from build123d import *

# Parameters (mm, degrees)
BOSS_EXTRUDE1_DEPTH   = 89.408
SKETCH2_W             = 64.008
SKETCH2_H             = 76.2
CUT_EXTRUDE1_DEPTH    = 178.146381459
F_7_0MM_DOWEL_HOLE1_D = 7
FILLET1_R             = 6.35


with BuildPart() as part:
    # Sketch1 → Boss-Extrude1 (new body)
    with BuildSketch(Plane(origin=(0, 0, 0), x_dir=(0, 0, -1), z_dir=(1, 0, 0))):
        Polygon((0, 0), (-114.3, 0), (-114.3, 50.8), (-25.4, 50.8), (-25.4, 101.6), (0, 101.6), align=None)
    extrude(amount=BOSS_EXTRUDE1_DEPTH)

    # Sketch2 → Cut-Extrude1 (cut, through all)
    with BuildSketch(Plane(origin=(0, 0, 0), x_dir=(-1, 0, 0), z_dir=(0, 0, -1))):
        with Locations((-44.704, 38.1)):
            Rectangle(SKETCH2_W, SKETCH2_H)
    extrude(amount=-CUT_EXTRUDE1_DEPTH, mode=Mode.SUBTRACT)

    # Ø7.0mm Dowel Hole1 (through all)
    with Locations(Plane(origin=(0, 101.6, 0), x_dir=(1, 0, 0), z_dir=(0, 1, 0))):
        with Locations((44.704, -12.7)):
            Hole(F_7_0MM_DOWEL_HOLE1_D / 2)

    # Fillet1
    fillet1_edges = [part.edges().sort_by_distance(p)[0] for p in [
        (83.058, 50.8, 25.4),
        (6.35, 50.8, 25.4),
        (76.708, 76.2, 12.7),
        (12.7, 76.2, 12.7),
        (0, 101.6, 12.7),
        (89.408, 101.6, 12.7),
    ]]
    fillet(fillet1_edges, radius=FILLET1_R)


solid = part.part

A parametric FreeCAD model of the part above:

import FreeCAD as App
import Part
import Sketcher

V = App.Vector
Q = App.Units.Quantity


def edges_at(feature, points):
    """Names of the edges that pass closest to the given points."""
    edges = feature.Shape.Edges
    near = lambda p: min(range(len(edges)), key=lambda i: edges[i].distToShape(Part.Vertex(*p))[0])
    return sorted({f"Edge{near(p) + 1}" for p in points})

doc = App.newDocument("Part")
body = doc.addObject("PartDesign::Body", "Body")

sketch1 = doc.addObject("Sketcher::SketchObject", "Sketch")
body.addObject(sketch1)
sketch1.AttachmentSupport = (doc.YZ_Plane, [""])
sketch1.MapMode = "FlatFace"
sketch1.addGeometry([
    Part.LineSegment(V(0, 114.3, 0), V(0, 0, 0)),
    Part.LineSegment(V(0, 0, 0), V(101.6, 0, 0)),
    Part.LineSegment(V(101.6, 0, 0), V(101.6, 25.4, 0)),
    Part.LineSegment(V(101.6, 25.4, 0), V(50.8, 25.4, 0)),
    Part.LineSegment(V(50.8, 25.4, 0), V(50.8, 114.3, 0)),
    Part.LineSegment(V(50.8, 114.3, 0), V(0, 114.3, 0)),
], False)
sketch1.addConstraint([
    Sketcher.Constraint("Coincident", 0, 2, 1, 1),
    Sketcher.Constraint("Coincident", 1, 2, 2, 1),
    Sketcher.Constraint("Coincident", 2, 2, 3, 1),
    Sketcher.Constraint("Coincident", 3, 2, 4, 1),
    Sketcher.Constraint("Coincident", 4, 2, 5, 1),
    Sketcher.Constraint("Coincident", 5, 2, 0, 1),
    Sketcher.Constraint("Vertical", 0),
    Sketcher.Constraint("Horizontal", 1),
    Sketcher.Constraint("Vertical", 2),
    Sketcher.Constraint("Horizontal", 3),
    Sketcher.Constraint("Vertical", 4),
    Sketcher.Constraint("Horizontal", 5),
    Sketcher.Constraint("Coincident", 0, 2, -1, 1),
    Sketcher.Constraint("Equal", 3, 5),
    Sketcher.Constraint("DistanceX", 1, 1, 1, 2, Q("4 in")),
    Sketcher.Constraint("DistanceY", 2, 1, 2, 2, Q("1 in")),
    Sketcher.Constraint("DistanceY", 0, 2, 0, 1, Q("4.5 in")),
])
pad1 = doc.addObject("PartDesign::Pad", "Pad")
body.addObject(pad1)
pad1.Profile = sketch1
pad1.Length = Q("3.52 in")

sketch2 = doc.addObject("Sketcher::SketchObject", "Sketch001")
body.addObject(sketch2)
sketch2.AttachmentSupport = (doc.XY_Plane, [""])
sketch2.MapMode = "FlatFace"
sketch2.addGeometry([
    Part.LineSegment(V(76.708, 76.2, 0), V(76.708, 0, 0)),
    Part.LineSegment(V(76.708, 0, 0), V(12.7, 0, 0)),
    Part.LineSegment(V(12.7, 0, 0), V(12.7, 76.2, 0)),
    Part.LineSegment(V(12.7, 76.2, 0), V(76.708, 76.2, 0)),
], False)
sketch2.addConstraint([
    Sketcher.Constraint("Coincident", 0, 2, 1, 1),
    Sketcher.Constraint("Coincident", 1, 2, 2, 1),
    Sketcher.Constraint("Coincident", 2, 2, 3, 1),
    Sketcher.Constraint("Coincident", 3, 2, 0, 1),
    Sketcher.Constraint("Vertical", 0),
    Sketcher.Constraint("Horizontal", 1),
    Sketcher.Constraint("Vertical", 2),
    Sketcher.Constraint("Horizontal", 3),
    Sketcher.Constraint("PointOnObject", 0, 2, -1),
    Sketcher.Constraint("DistanceY", 0, 2, 0, 1, Q("3 in")),
    Sketcher.Constraint("DistanceX", 1, 2, 1, 1, Q("2.52 in")),
    Sketcher.Constraint("DistanceX", -1, 1, 1, 2, Q("0.5 in")),
])
pocket1 = doc.addObject("PartDesign::Pocket", "Pocket")
body.addObject(pocket1)
pocket1.Profile = sketch2
pocket1.Type = "ThroughAll"
pocket1.Reversed = True

sketch3 = doc.addObject("Sketcher::SketchObject", "Sketch002")
body.addObject(sketch3)
sketch3.AttachmentSupport = (doc.XZ_Plane, [""])
sketch3.MapMode = "FlatFace"
sketch3.AttachmentOffset = App.Placement(V(0, 0, -4 * 25.4), App.Rotation())
sketch3.addGeometry(Part.Circle(V(44.704, 12.7, 0), V(0, 0, 1), 3.5), False)
sketch3.addConstraint([
    Sketcher.Constraint("DistanceY", -1, 1, 0, 3, Q("0.5 in")),
    Sketcher.Constraint("Diameter", 0, Q("7 mm")),
    Sketcher.Constraint("DistanceX", -1, 1, 0, 3, Q("1.76 in")),
])
doc.recompute()
hole = doc.addObject("PartDesign::Hole", "Hole")
body.addObject(hole)
hole.Profile = sketch3
hole.ThreadType = "None"
hole.Diameter = 7
hole.DepthType = "ThroughAll"
hole.Reversed = True
doc.recompute()

fillet = doc.addObject("PartDesign::Fillet", "Fillet")
body.addObject(fillet)
fillet.Base = (hole, edges_at(hole, [
    (83.058, 50.8, 25.4),
    (6.35, 50.8, 25.4),
    (76.708, 76.2, 12.7),
    (12.7, 76.2, 12.7),
    (0, 101.6, 12.7),
    (89.408, 101.6, 12.7),
]))
fillet.Radius = Q("0.25 in")

doc.recompute()
